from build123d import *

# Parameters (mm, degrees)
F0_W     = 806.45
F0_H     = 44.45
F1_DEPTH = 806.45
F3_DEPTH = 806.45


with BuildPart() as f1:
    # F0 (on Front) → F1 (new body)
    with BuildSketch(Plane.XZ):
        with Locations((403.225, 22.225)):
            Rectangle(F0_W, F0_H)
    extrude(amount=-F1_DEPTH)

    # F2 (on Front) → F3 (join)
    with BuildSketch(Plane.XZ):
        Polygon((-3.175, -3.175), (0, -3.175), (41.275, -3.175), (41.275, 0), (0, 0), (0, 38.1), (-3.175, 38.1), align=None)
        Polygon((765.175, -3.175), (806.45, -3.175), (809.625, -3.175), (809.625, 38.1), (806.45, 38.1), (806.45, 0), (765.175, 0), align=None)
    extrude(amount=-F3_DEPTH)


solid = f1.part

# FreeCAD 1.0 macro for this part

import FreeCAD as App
import Part
import Sketcher
from FreeCAD import Vector
Q = App.Units.Quantity


def add_polygon(sketch, points):
    """Adds a closed chain of lines whose ends are joined by coincident constraints."""
    first, n = sketch.GeometryCount, len(points)
    for a, b in zip(points, points[1:] + points[:1]):
        sketch.addGeometry(Part.LineSegment(App.Vector(*a, 0), App.Vector(*b, 0)), False)
    for i in range(n):
        sketch.addConstraint(Sketcher.Constraint("Coincident", first + i, 2, first + (i + 1) % n, 1))

doc = App.newDocument("Part")
params = doc.addObject("Spreadsheet::Sheet", "Params")
for row, (alias, value) in enumerate([
    ("sketch1_width", "31.75 in"),
    ("sketch1_height", "1.75 in"),
    ("pad1_length", "31.75 in"),
    ("sketch2_height", "1.5 in"),
    ("sketch2_width", "1.75 in"),
    ("pad2_length", "31.75 in"),
], start=1):
    params.set(f"A{row}", alias)
    params.set(f"B{row}", "=" + value)
    params.setAlias(f"B{row}", alias)

body = doc.addObject("PartDesign::Body", "Body")

# Sketch on XZ plane
sketch1 = body.newObject("Sketcher::SketchObject", "Sketch")
sketch1.AttachmentSupport = (doc.getObject("XZ_Plane"), [""])
sketch1.MapMode = "FlatFace"
add_polygon(sketch1, [(0, 44), (0, 0), (806, 0), (806, 44)])  # lines 0-3
sketch1.addConstraint([
    Sketcher.Constraint("Vertical", 0),
    Sketcher.Constraint("Horizontal", 1),
    Sketcher.Constraint("Vertical", 2),
    Sketcher.Constraint("Horizontal", 3),
    Sketcher.Constraint("Coincident", 0, 2, -1, 1),
    Sketcher.Constraint("DistanceX", 1, 1, 1, 2, Q("31.75 in")),
    Sketcher.Constraint("DistanceY", 0, 2, 0, 1, Q("1.75 in")),
])
sketch1.setExpression("Constraints[9]", "Params.sketch1_width")
sketch1.setExpression("Constraints[10]", "Params.sketch1_height")
pad1 = body.newObject("PartDesign::Pad", "Pad")
pad1.Profile = sketch1
pad1.setExpression("Length", "Params.pad1_length")
pad1.Reversed = True

# Sketch on XZ plane
sketch2 = body.newObject("Sketcher::SketchObject", "Sketch001")
sketch2.AttachmentSupport = (doc.getObject("XZ_Plane"), [""])
sketch2.MapMode = "FlatFace"
add_polygon(sketch2, [(-3.2, -3.2), (41.3, -3.2), (41.3, 0), (0, 0), (0, 38.1), (-3.2, 38.1)])  # lines 0-5
add_polygon(sketch2, [(765.2, -3.2), (809.6, -3.2), (809.6, 38.1), (806.5, 38.1), (806.5, 0), (765.2, 0)])  # lines 6-11
sketch2.addConstraint([
    Sketcher.Constraint("Horizontal", 0),
    Sketcher.Constraint("Vertical", 1),
    Sketcher.Constraint("Horizontal", 2),
    Sketcher.Constraint("Vertical", 3),
    Sketcher.Constraint("Horizontal", 4),
    Sketcher.Constraint("Vertical", 5),
    Sketcher.Constraint("Horizontal", 6),
    Sketcher.Constraint("Vertical", 7),
    Sketcher.Constraint("Horizontal", 8),
    Sketcher.Constraint("Vertical", 9),
    Sketcher.Constraint("Horizontal", 10),
    Sketcher.Constraint("Vertical", 11),
    Sketcher.Constraint("Coincident", 2, 2, -1, 1),
    Sketcher.Constraint("PointOnObject", 9, 2, -1),
    Sketcher.Constraint("Horizontal", 5, 2, 6, 2),
    Sketcher.Constraint("Horizontal", 4, 2, 7, 2),
    Sketcher.Constraint("Equal", 0, 6),
    Sketcher.Constraint("Equal", 4, 8),
    Sketcher.Constraint("Equal", 8, 1),
    Sketcher.Constraint("Equal", 10, 5),
    Sketcher.Constraint("DistanceY", 3, 1, 3, 2, Q("1.5 in")),
    Sketcher.Constraint("DistanceX", 5, 2, 6, 2, Q("32 in")),
    Sketcher.Constraint("DistanceX", 0, 1, 0, 2, Q("1.75 in")),
])
sketch2.setExpression("Constraints[32]", "Params.sketch2_height")
sketch2.setExpression("Constraints[34]", "Params.sketch2_width")
pad2 = body.newObject("PartDesign::Pad", "Pad001")
pad2.Profile = sketch2
pad2.setExpression("Length", "Params.pad2_length")
pad2.Reversed = True

doc.recompute()
